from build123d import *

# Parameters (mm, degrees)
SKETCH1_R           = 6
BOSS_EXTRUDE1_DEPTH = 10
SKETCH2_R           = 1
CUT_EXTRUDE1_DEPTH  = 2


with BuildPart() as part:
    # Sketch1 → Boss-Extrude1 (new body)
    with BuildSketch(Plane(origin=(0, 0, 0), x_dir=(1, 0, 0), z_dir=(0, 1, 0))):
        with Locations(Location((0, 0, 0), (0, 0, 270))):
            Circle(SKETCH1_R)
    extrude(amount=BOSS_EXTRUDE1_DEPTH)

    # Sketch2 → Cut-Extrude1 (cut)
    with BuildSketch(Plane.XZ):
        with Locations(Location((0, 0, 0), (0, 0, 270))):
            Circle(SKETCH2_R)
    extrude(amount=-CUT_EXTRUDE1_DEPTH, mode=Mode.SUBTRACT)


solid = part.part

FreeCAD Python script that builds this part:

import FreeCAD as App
import Part
import Sketcher
from FreeCAD import Vector

doc = App.newDocument("Part")
body = doc.addObject("PartDesign::Body", "Body")

# Sketch on XZ plane
sketch1 = doc.addObject("Sketcher::SketchObject", "Sketch")
body.addObject(sketch1)
sketch1.AttachmentSupport = (doc.XZ_Plane, [""])
sketch1.MapMode = "FlatFace"
sketch1.addGeometry(Part.Circle(Vector(0, 0, 0), Vector(0, 0, 1), 6), False)
sketch1.addConstraint(Sketcher.Constraint("Coincident", 0, 3, -1, 1))
sketch1.addConstraint(Sketcher.Constraint("Diameter", 0, 12.0))
pad1 = doc.addObject("PartDesign::Pad", "Pad")
body.addObject(pad1)
pad1.Profile = sketch1
pad1.Length = 10
pad1.Reversed = True

# Sketch on XZ plane
sketch2 = doc.addObject("Sketcher::SketchObject", "Sketch001")
body.addObject(sketch2)
sketch2.AttachmentSupport = (doc.XZ_Plane, [""])
sketch2.MapMode = "FlatFace"
sketch2.addGeometry(Part.Circle(Vector(0, 0, 0), Vector(0, 0, 1), 1), False)
sketch2.addConstraint(Sketcher.Constraint("Coincident", 0, 3, -1, 1))
sketch2.addConstraint(Sketcher.Constraint("Diameter", 0, 2.0))
pocket1 = doc.addObject("PartDesign::Pocket", "Pocket")
body.addObject(pocket1)
pocket1.Profile = sketch2
pocket1.Length = 2

doc.recompute()
